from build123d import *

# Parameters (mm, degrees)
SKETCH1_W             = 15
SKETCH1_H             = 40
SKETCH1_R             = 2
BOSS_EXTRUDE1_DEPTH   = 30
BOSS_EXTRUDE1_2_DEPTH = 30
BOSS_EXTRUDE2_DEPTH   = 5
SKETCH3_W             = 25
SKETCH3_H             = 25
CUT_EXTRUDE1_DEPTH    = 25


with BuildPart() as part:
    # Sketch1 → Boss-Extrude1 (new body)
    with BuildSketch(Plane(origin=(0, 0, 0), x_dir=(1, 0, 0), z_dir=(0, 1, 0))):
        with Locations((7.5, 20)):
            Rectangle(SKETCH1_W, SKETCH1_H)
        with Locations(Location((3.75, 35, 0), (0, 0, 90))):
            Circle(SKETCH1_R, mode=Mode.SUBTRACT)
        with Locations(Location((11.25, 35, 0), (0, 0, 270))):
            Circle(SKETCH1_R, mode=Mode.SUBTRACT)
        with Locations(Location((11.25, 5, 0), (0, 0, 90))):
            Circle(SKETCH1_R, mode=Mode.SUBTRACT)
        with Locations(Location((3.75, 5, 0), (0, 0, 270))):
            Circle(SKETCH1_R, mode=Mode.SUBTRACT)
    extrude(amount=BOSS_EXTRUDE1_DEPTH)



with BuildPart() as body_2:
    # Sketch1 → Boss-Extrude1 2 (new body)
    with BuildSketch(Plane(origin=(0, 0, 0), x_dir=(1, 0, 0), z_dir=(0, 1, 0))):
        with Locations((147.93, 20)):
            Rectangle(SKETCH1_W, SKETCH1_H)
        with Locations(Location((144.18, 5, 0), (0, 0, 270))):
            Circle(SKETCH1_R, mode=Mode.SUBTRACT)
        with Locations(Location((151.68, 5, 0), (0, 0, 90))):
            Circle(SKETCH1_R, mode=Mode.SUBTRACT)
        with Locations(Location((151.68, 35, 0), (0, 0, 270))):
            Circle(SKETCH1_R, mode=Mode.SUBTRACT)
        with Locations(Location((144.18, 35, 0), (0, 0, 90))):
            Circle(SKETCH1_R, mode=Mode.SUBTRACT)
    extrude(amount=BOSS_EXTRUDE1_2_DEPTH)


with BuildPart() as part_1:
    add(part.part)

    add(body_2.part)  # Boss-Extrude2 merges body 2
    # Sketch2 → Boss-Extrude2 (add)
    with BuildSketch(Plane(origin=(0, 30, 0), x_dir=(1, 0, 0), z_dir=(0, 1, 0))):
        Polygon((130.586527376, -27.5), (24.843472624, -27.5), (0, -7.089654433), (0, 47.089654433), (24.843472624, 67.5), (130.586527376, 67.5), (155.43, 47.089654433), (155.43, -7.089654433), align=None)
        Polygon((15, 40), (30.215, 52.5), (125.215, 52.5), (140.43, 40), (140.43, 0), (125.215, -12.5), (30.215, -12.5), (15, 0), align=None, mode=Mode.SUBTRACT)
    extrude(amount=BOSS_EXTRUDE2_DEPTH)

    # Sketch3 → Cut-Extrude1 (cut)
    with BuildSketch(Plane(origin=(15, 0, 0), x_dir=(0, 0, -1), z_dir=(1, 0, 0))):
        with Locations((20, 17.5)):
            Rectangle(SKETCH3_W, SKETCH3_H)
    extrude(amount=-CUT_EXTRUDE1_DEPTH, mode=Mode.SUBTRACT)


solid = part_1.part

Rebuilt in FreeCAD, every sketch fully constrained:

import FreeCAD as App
import Part
import Sketcher
Q = App.Units.Quantity


def add_polygon(sketch, points):
    """Adds a closed chain of lines whose ends are joined by coincident constraints."""
    first, n = sketch.GeometryCount, len(points)
    for a, b in zip(points, points[1:] + points[:1]):
        sketch.addGeometry(Part.LineSegment(App.Vector(*a, 0), App.Vector(*b, 0)), False)
    for i in range(n):
        sketch.addConstraint(Sketcher.Constraint("Coincident", first + i, 2, first + (i + 1) % n, 1))

doc = App.newDocument("Part")
params = doc.addObject("Spreadsheet::Sheet", "Params")
for row, (alias, value) in enumerate([
    ("sketch1_diameter", "4 mm"),
    ("sketch1_width", "15 mm"),
    ("sketch1_height", "40 mm"),
    ("pad1_length", "30 mm"),
    ("sketch2_diameter", "4 mm"),
    ("sketch2_width", "15 mm"),
    ("sketch2_height", "40 mm"),
    ("pad2_length", "30 mm"),
    ("sketch3_width", "95 mm"),
    ("sketch3_height", "40 mm"),
    ("pad3_length", "5 mm"),
    ("sketch4_width", "25 mm"),
    ("pocket1_length", "25 mm"),
], start=1):
    params.set(f"A{row}", alias)
    params.set(f"B{row}", "=" + value)
    params.setAlias(f"B{row}", alias)

body = doc.addObject("PartDesign::Body", "Body")

# Sketch on XZ plane
sketch1 = doc.addObject("Sketcher::SketchObject", "Sketch")
body.addObject(sketch1)
sketch1.AttachmentSupport = (doc.XZ_Plane, [""])
sketch1.MapMode = "FlatFace"
add_polygon(sketch1, [(0, -40), (0, 0), (15, 0), (15, -40)])  # lines 0-3
sketch1.addGeometry(Part.Circle(App.Vector(3.8, -5, 0), App.Vector(0, 0, 1), 2), False)  # 4
sketch1.addGeometry(Part.Circle(App.Vector(11.2, -5, 0), App.Vector(0, 0, 1), 2), False)  # 5
sketch1.addGeometry(Part.Circle(App.Vector(3.8, -35, 0), App.Vector(0, 0, 1), 2), False)  # 6
sketch1.addGeometry(Part.Circle(App.Vector(11.2, -35, 0), App.Vector(0, 0, 1), 2), False)  # 7
sketch1.addConstraint([
    Sketcher.Constraint("Vertical", 0),
    Sketcher.Constraint("Horizontal", 1),
    Sketcher.Constraint("Vertical", 2),
    Sketcher.Constraint("Horizontal", 3),
    Sketcher.Constraint("Coincident", 0, 2, -1, 1),
    Sketcher.Constraint("Equal", 4, 5),
    Sketcher.Constraint("Equal", 5, 6),
    Sketcher.Constraint("Equal", 6, 7),
    Sketcher.Constraint("Horizontal", 4, 3, 5, 3),
    Sketcher.Constraint("Horizontal", 6, 3, 7, 3),
    Sketcher.Constraint("Vertical", 4, 3, 6, 3),
    Sketcher.Constraint("Vertical", 5, 3, 7, 3),
    Sketcher.Constraint("Diameter", 4, Q("4 mm")),
    Sketcher.Constraint("DistanceX", 1, 1, 1, 2, Q("15 mm")),
    Sketcher.Constraint("DistanceY", 0, 1, 0, 2, Q("40 mm")),
    Sketcher.Constraint("DistanceY", 4, 3, -1, 1, Q("5 mm")),
    Sketcher.Constraint("DistanceY", 6, 3, -1, 1, Q("35 mm")),
    Sketcher.Constraint("DistanceX", 4, 3, 5, 3, Q("7.5 mm")),
    Sketcher.Constraint("DistanceX", -1, 1, 4, 3, Q("3.75 mm")),
])
sketch1.setExpression("Constraints[16]", "Params.sketch1_diameter")
sketch1.setExpression("Constraints[17]", "Params.sketch1_width")
sketch1.setExpression("Constraints[18]", "Params.sketch1_height")
pad1 = doc.addObject("PartDesign::Pad", "Pad")
body.addObject(pad1)
pad1.Profile = sketch1
pad1.setExpression("Length", "Params.pad1_length")
pad1.Reversed = True
body2 = doc.addObject("PartDesign::Body", "Body001")

# Sketch on XZ plane
sketch2 = doc.addObject("Sketcher::SketchObject", "Sketch001")
body2.addObject(sketch2)
sketch2.AttachmentSupport = (doc.getObject("XZ_Plane001"), [""])
sketch2.MapMode = "FlatFace"
add_polygon(sketch2, [(140.4, -40), (140.4, 0), (155.4, 0), (155.4, -40)])  # lines 0-3
sketch2.addGeometry(Part.Circle(App.Vector(144.2, -5, 0), App.Vector(0, 0, 1), 2), False)  # 4
sketch2.addGeometry(Part.Circle(App.Vector(151.7, -5, 0), App.Vector(0, 0, 1), 2), False)  # 5
sketch2.addGeometry(Part.Circle(App.Vector(144.2, -35, 0), App.Vector(0, 0, 1), 2), False)  # 6
sketch2.addGeometry(Part.Circle(App.Vector(151.7, -35, 0), App.Vector(0, 0, 1), 2), False)  # 7
sketch2.addConstraint([
    Sketcher.Constraint("Vertical", 0),
    Sketcher.Constraint("Horizontal", 1),
    Sketcher.Constraint("Vertical", 2),
    Sketcher.Constraint("Horizontal", 3),
    Sketcher.Constraint("Equal", 4, 5),
    Sketcher.Constraint("Equal", 5, 6),
    Sketcher.Constraint("Equal", 6, 7),
    Sketcher.Constraint("PointOnObject", 0, 2, -1),
    Sketcher.Constraint("Horizontal", 4, 3, 5, 3),
    Sketcher.Constraint("Horizontal", 6, 3, 7, 3),
    Sketcher.Constraint("Vertical", 4, 3, 6, 3),
    Sketcher.Constraint("Vertical", 5, 3, 7, 3),
    Sketcher.Constraint("Diameter", 4, Q("4 mm")),
    Sketcher.Constraint("DistanceX", 1, 1, 1, 2, Q("15 mm")),
    Sketcher.Constraint("DistanceY", 0, 1, 0, 2, Q("40 mm")),
    Sketcher.Constraint("DistanceY", 4, 3, -1, 1, Q("5 mm")),
    Sketcher.Constraint("DistanceY", 6, 3, -1, 1, Q("35 mm")),
    Sketcher.Constraint("DistanceX", 4, 3, 5, 3, Q("7.5 mm")),
    Sketcher.Constraint("DistanceX", -1, 1, 4, 3, Q("144.18 mm")),
    Sketcher.Constraint("DistanceX", -1, 1, 0, 2, Q("140.43 mm")),
])
sketch2.setExpression("Constraints[16]", "Params.sketch2_diameter")
sketch2.setExpression("Constraints[17]", "Params.sketch2_width")
sketch2.setExpression("Constraints[18]", "Params.sketch2_height")
pad2 = doc.addObject("PartDesign::Pad", "Pad001")
body2.addObject(pad2)
pad2.Profile = sketch2
pad2.setExpression("Length", "Params.pad2_length")
pad2.Reversed = True
body.AllowCompound = True
doc.recompute()

boolean = doc.addObject("PartDesign::Boolean", "Boolean")
body.addObject(boolean)
boolean.Type = "Fuse"
boolean.addObjects([body2])

# Sketch on XZ plane
sketch3 = doc.addObject("Sketcher::SketchObject", "Sketch002")
body.addObject(sketch3)
sketch3.AttachmentSupport = (doc.XZ_Plane, [""])
sketch3.MapMode = "FlatFace"
sketch3.AttachmentOffset = App.Placement(App.Vector(0, 0, -30), App.Rotation())
add_polygon(sketch3, [(25, 28), (131, 28), (155, 7), (155, -47), (131, -68), (25, -68), (0, -47), (0, 7)])  # lines 0-7
add_polygon(sketch3, [(15, -40), (30, -52), (125, -52), (140, -40), (140, 0), (125, 12), (30, 12), (15, 0)])  # lines 8-15
sketch3.addConstraint([
    Sketcher.Constraint("Horizontal", 0),
    Sketcher.Constraint("Vertical", 2),
    Sketcher.Constraint("Horizontal", 4),
    Sketcher.Constraint("Vertical", 6),
    Sketcher.Constraint("Horizontal", 9),
    Sketcher.Constraint("Vertical", 11),
    Sketcher.Constraint("Horizontal", 13),
    Sketcher.Constraint("Vertical", 15),
    Sketcher.Constraint("PointOnObject", 5, 2, -2),
    Sketcher.Constraint("PointOnObject", 11, 2, -1),
    Sketcher.Constraint("PointOnObject", 14, 2, -1),
    Sketcher.Constraint("Parallel", 1, 5),
    Sketcher.Constraint("Parallel", 3, 7),
    Sketcher.Constraint("Parallel", 5, 8),
    Sketcher.Constraint("Parallel", 7, 10),
    Sketcher.Constraint("Parallel", 8, 12),
    Sketcher.Constraint("Parallel", 10, 14),
    Sketcher.Constraint("Horizontal", 2, 2, 5, 2),
    Sketcher.Constraint("Horizontal", 1, 2, 6, 2),
    Sketcher.Constraint("Horizontal", 10, 2, 15, 2),
    Sketcher.Constraint("Vertical", 0, 2, 3, 2),
    Sketcher.Constraint("Vertical", 4, 2, 7, 2),
    Sketcher.Constraint("Vertical", 9, 2, 12, 2),
    Sketcher.Constraint("DistanceX", 9, 1, 9, 2, Q("95 mm")),
    Sketcher.Constraint("DistanceY", 11, 1, 11, 2, Q("40 mm")),
    Sketcher.Constraint("DistanceX", -1, 1, 14, 2, Q("15 mm")),
    Sketcher.Constraint("DistanceY", 3, 2, 0, 2, Q("95 mm")),
    Sketcher.Constraint("DistanceY", 4, 2, 8, 2, Q("15 mm")),
    Sketcher.Constraint("DistanceX", 10, 2, 2, 2, Q("15 mm")),
    Sketcher.Constraint("DistanceY", 12, 2, 0, 2, Q("15 mm")),
    Sketcher.Constraint("DistanceX", -1, 1, 1, 2, Q("155.43 mm")),
    Sketcher.Constraint("DistanceY", 2, 2, 2, 1, Q("54.179309 mm")),
])
sketch3.setExpression("Constraints[39]", "Params.sketch3_width")
sketch3.setExpression("Constraints[40]", "Params.sketch3_height")
pad3 = doc.addObject("PartDesign::Pad", "Pad002")
body.addObject(pad3)
pad3.Profile = sketch3
pad3.setExpression("Length", "Params.pad3_length")
pad3.Reversed = True

# Sketch on YZ plane
sketch4 = doc.addObject("Sketcher::SketchObject", "Sketch003")
body.addObject(sketch4)
sketch4.AttachmentSupport = (doc.YZ_Plane, [""])
sketch4.MapMode = "FlatFace"
sketch4.AttachmentOffset = App.Placement(App.Vector(0, 0, 15), App.Rotation())
add_polygon(sketch4, [(30, -8), (5, -8), (5, -32), (30, -32)])  # lines 0-3
sketch4.addConstraint([
    Sketcher.Constraint("Horizontal", 0),
    Sketcher.Constraint("Vertical", 1),
    Sketcher.Constraint("Horizontal", 2),
    Sketcher.Constraint("Vertical", 3),
    Sketcher.Constraint("Equal", 2, 1),
    Sketcher.Constraint("DistanceX", 0, 2, 0, 1, Q("25 mm")),
    Sketcher.Constraint("DistanceX", -1, 1, 0, 2, Q("5 mm")),
    Sketcher.Constraint("DistanceY", 0, 2, -1, 1, Q("7.5 mm")),
])
sketch4.setExpression("Constraints[9]", "Params.sketch4_width")
pocket1 = doc.addObject("PartDesign::Pocket", "Pocket")
body.addObject(pocket1)
pocket1.Profile = sketch4
pocket1.setExpression("Length", "Params.pocket1_length")

doc.recompute()
